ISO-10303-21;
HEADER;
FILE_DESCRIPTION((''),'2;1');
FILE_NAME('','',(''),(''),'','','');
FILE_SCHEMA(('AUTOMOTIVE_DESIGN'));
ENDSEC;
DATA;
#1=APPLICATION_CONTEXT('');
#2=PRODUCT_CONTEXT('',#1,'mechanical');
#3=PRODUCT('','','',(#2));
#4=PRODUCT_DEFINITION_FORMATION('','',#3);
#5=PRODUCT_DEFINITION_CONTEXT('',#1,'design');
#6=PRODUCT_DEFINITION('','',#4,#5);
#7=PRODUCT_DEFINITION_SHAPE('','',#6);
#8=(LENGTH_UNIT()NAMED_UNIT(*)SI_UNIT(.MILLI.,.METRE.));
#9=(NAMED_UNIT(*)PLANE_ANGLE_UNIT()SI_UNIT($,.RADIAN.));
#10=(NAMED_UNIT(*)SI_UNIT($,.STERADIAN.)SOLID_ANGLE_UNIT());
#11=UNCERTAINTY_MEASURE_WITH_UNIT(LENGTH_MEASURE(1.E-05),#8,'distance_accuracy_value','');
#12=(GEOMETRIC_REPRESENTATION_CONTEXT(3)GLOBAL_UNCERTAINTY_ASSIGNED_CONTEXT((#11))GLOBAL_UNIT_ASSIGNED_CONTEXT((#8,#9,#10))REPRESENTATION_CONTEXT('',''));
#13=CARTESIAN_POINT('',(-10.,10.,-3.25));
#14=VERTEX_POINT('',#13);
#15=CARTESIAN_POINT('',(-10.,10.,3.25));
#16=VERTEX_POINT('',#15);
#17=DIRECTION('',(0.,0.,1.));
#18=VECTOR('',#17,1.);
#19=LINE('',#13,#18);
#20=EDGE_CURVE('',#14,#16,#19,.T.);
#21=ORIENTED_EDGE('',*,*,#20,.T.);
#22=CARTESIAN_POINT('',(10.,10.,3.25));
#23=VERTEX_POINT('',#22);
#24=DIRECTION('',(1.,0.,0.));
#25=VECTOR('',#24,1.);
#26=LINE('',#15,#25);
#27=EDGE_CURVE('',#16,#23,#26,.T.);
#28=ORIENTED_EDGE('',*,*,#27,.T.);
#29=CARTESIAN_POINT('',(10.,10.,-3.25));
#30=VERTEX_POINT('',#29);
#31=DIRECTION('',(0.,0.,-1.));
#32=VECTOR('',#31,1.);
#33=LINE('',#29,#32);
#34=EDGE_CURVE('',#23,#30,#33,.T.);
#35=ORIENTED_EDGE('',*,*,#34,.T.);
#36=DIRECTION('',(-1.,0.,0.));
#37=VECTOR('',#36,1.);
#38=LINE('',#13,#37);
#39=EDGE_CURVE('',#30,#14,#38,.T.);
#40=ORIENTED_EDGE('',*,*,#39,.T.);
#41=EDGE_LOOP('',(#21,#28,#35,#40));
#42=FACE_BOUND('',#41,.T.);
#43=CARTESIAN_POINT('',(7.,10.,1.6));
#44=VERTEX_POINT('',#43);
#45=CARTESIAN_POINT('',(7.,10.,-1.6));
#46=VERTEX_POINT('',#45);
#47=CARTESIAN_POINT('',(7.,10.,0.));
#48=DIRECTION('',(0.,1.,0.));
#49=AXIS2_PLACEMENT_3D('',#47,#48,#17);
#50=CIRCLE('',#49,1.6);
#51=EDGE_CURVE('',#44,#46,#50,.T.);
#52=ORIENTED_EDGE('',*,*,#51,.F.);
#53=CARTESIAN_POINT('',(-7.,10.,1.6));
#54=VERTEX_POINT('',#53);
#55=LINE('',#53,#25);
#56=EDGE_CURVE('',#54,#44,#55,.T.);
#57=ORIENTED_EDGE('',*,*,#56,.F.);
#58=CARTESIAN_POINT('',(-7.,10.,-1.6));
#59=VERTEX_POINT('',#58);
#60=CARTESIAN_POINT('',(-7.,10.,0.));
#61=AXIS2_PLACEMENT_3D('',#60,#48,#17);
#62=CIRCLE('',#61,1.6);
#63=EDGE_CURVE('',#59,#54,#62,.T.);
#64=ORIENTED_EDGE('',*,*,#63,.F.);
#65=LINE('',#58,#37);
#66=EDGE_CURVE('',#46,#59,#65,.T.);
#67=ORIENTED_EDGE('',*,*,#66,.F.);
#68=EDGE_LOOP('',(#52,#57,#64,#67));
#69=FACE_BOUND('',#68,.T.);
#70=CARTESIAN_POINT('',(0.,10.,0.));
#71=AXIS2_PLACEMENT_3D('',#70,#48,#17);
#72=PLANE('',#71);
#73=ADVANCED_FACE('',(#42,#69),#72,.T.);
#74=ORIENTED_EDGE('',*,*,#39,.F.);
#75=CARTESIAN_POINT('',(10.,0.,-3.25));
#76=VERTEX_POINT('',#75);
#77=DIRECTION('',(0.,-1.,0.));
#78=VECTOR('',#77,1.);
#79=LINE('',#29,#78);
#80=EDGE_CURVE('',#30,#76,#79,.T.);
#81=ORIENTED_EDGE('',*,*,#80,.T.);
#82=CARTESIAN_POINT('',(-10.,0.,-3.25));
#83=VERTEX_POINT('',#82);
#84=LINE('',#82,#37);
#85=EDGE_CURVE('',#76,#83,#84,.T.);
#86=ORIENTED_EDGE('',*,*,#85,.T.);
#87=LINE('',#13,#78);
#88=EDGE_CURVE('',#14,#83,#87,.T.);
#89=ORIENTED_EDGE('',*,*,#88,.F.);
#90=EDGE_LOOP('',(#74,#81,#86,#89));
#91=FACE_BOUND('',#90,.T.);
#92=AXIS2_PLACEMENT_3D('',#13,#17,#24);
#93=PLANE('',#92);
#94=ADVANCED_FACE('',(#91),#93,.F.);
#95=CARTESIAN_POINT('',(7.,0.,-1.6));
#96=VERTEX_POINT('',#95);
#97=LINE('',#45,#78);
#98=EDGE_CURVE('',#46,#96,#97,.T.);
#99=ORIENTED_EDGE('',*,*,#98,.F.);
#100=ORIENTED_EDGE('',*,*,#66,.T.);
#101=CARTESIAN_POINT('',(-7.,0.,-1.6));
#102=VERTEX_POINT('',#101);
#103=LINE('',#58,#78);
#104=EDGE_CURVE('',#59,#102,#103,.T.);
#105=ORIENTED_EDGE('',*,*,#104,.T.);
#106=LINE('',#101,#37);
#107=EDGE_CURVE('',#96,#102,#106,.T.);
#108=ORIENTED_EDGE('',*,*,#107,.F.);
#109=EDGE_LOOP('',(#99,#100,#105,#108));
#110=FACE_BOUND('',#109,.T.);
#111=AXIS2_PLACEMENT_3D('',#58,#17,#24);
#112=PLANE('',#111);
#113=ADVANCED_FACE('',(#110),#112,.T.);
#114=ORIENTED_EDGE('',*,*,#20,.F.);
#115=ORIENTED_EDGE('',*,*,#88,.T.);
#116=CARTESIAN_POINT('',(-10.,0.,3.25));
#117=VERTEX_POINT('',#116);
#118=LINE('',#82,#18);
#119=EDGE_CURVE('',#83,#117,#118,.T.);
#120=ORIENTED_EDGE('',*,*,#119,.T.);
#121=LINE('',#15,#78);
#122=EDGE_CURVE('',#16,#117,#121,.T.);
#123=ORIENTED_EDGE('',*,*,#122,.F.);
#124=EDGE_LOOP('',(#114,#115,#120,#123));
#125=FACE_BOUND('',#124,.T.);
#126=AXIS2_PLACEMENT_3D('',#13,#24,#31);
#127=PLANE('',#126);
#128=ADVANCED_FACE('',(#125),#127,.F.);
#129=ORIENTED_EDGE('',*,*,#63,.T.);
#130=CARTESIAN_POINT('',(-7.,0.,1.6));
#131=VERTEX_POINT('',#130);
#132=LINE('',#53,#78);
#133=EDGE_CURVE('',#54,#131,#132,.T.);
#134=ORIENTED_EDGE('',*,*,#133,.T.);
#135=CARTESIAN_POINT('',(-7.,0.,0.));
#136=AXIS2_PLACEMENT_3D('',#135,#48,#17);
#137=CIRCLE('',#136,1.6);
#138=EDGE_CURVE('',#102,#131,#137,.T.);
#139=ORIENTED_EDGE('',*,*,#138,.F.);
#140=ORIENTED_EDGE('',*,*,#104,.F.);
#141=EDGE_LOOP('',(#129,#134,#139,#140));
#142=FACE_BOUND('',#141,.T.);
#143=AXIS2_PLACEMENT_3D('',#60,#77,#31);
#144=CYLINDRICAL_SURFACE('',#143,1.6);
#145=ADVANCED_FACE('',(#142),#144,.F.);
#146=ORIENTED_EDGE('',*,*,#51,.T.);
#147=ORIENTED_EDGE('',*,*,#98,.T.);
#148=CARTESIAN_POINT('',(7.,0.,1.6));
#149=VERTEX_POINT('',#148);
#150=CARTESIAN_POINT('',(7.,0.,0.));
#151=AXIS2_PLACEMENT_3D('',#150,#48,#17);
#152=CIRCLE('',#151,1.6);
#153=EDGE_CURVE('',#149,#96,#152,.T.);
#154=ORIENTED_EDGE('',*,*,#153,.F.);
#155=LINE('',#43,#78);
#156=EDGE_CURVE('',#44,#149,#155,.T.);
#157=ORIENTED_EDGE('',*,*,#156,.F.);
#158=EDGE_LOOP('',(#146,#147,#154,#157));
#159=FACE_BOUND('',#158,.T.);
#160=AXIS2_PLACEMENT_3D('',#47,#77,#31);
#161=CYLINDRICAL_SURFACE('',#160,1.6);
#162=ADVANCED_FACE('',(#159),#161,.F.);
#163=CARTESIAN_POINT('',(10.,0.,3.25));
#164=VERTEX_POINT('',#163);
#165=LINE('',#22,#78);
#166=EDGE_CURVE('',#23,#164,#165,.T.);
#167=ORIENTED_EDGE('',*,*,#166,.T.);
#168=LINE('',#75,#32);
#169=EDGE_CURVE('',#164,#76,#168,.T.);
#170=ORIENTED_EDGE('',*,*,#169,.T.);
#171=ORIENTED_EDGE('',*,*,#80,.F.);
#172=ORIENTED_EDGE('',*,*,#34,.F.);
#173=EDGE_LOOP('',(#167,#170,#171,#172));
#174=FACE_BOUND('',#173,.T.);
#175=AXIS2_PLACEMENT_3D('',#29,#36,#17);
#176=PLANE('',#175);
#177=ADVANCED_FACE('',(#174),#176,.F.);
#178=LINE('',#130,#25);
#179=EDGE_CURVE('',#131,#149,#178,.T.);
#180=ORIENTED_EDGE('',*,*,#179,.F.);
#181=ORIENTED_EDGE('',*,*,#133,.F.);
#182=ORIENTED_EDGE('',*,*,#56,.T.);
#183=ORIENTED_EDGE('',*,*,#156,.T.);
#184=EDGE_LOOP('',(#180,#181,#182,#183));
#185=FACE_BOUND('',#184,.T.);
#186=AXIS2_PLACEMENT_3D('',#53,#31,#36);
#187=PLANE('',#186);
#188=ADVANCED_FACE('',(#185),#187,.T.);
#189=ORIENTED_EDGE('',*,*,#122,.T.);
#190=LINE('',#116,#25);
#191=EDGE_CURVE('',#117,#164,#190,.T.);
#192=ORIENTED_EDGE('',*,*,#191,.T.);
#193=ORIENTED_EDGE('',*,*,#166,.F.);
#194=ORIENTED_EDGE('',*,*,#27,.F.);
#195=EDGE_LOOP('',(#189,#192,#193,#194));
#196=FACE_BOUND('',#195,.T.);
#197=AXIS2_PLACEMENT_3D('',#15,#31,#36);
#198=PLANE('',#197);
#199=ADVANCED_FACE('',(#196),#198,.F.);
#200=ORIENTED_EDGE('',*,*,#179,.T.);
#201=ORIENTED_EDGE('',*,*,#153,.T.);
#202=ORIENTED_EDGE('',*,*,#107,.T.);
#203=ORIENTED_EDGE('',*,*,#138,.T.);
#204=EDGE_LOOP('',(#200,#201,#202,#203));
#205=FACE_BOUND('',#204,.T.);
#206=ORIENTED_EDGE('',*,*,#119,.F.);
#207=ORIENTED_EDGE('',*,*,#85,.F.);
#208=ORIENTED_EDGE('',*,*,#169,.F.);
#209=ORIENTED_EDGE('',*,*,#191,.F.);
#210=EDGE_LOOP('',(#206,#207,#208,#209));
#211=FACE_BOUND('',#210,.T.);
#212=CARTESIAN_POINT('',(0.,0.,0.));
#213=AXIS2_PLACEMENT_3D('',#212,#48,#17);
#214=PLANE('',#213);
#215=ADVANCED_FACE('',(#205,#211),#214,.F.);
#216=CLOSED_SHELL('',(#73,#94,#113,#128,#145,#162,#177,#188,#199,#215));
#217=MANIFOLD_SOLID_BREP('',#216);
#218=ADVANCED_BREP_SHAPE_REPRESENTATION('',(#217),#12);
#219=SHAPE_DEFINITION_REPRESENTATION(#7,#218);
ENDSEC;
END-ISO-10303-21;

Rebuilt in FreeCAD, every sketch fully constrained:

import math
import FreeCAD as App
import Part
import Sketcher

V = App.Vector

doc = App.newDocument("Part")
params = doc.addObject("Spreadsheet::Sheet", "Params")
for row, (alias, value) in enumerate([
    ("sketch1_radius", "1.6 mm"),
    ("sketch1_width", "20 mm"),
    ("sketch1_width2", "14 mm"),
    ("sketch1_height", "6.5 mm"),
    ("pad1_length", "10 mm"),
], start=1):
    params.set(f"A{row}", alias)
    params.set(f"B{row}", "=" + value)
    params.setAlias(f"B{row}", alias)

body = doc.addObject("PartDesign::Body", "Body")

# Sketch on XZ plane
sketch1 = body.newObject("Sketcher::SketchObject", "Sketch")
sketch1.AttachmentSupport = (doc.getObject("XZ_Plane"), [""])
sketch1.MapMode = "FlatFace"
sketch1.addGeometry(Part.LineSegment(V(-10, -3.2, 0), V(-10, 3.2, 0)), False)
sketch1.addGeometry(Part.LineSegment(V(-10, 3.2, 0), V(10, 3.2, 0)), False)
sketch1.addGeometry(Part.LineSegment(V(10, 3.2, 0), V(10, -3.2, 0)), False)
sketch1.addGeometry(Part.LineSegment(V(10, -3.2, 0), V(-10, -3.2, 0)), False)
sketch1.addGeometry(Part.ArcOfCircle(Part.Circle(V(-7, 0, 0), V(0, 0, 1), 1.6), math.radians(90), math.radians(270)), False)
sketch1.addGeometry(Part.LineSegment(V(-7, -1.6, 0), V(7, -1.6, 0)), False)
sketch1.addGeometry(Part.ArcOfCircle(Part.Circle(V(7, 0, 0), V(0, 0, 1), 1.6), math.radians(-90), math.radians(90)), False)
sketch1.addGeometry(Part.LineSegment(V(7, 1.6, 0), V(-7, 1.6, 0)), False)
sketch1.addConstraint(Sketcher.Constraint("Coincident", 0, 2, 1, 1))
sketch1.addConstraint(Sketcher.Constraint("Coincident", 1, 2, 2, 1))
sketch1.addConstraint(Sketcher.Constraint("Coincident", 2, 2, 3, 1))
sketch1.addConstraint(Sketcher.Constraint("Coincident", 3, 2, 0, 1))
sketch1.addConstraint(Sketcher.Constraint("Tangent", 4, 2, 5, 1))
sketch1.addConstraint(Sketcher.Constraint("Tangent", 5, 2, 6, 1))
sketch1.addConstraint(Sketcher.Constraint("Tangent", 6, 2, 7, 1))
sketch1.addConstraint(Sketcher.Constraint("Tangent", 7, 2, 4, 1))
sketch1.addConstraint(Sketcher.Constraint("Vertical", 0))
sketch1.addConstraint(Sketcher.Constraint("Horizontal", 1))
sketch1.addConstraint(Sketcher.Constraint("Vertical", 2))
sketch1.addConstraint(Sketcher.Constraint("Horizontal", 3))
sketch1.addConstraint(Sketcher.Constraint("Horizontal", 5))
sketch1.addConstraint(Sketcher.Constraint("Horizontal", 7))
sketch1.addConstraint(Sketcher.Constraint("Symmetric", 4, 3, 6, 3, -1, 1))
sketch1.addConstraint(Sketcher.Constraint("Symmetric", 0, 2, 2, 2, -1, 1))
sketch1.addConstraint(Sketcher.Constraint("Radius", 4, 1.6))
sketch1.addConstraint(Sketcher.Constraint("DistanceX", 1, 1, 1, 2, 20.0))
sketch1.addConstraint(Sketcher.Constraint("DistanceX", 5, 1, 5, 2, 14.0))
sketch1.addConstraint(Sketcher.Constraint("DistanceY", 0, 1, 0, 2, 6.5))
sketch1.setExpression("Constraints[16]", "Params.sketch1_radius")
sketch1.setExpression("Constraints[17]", "Params.sketch1_width")
sketch1.setExpression("Constraints[18]", "Params.sketch1_width2")
sketch1.setExpression("Constraints[19]", "Params.sketch1_height")
pad1 = body.newObject("PartDesign::Pad", "Pad")
pad1.Profile = sketch1
pad1.setExpression("Length", "Params.pad1_length")
pad1.Reversed = True

doc.recompute()
